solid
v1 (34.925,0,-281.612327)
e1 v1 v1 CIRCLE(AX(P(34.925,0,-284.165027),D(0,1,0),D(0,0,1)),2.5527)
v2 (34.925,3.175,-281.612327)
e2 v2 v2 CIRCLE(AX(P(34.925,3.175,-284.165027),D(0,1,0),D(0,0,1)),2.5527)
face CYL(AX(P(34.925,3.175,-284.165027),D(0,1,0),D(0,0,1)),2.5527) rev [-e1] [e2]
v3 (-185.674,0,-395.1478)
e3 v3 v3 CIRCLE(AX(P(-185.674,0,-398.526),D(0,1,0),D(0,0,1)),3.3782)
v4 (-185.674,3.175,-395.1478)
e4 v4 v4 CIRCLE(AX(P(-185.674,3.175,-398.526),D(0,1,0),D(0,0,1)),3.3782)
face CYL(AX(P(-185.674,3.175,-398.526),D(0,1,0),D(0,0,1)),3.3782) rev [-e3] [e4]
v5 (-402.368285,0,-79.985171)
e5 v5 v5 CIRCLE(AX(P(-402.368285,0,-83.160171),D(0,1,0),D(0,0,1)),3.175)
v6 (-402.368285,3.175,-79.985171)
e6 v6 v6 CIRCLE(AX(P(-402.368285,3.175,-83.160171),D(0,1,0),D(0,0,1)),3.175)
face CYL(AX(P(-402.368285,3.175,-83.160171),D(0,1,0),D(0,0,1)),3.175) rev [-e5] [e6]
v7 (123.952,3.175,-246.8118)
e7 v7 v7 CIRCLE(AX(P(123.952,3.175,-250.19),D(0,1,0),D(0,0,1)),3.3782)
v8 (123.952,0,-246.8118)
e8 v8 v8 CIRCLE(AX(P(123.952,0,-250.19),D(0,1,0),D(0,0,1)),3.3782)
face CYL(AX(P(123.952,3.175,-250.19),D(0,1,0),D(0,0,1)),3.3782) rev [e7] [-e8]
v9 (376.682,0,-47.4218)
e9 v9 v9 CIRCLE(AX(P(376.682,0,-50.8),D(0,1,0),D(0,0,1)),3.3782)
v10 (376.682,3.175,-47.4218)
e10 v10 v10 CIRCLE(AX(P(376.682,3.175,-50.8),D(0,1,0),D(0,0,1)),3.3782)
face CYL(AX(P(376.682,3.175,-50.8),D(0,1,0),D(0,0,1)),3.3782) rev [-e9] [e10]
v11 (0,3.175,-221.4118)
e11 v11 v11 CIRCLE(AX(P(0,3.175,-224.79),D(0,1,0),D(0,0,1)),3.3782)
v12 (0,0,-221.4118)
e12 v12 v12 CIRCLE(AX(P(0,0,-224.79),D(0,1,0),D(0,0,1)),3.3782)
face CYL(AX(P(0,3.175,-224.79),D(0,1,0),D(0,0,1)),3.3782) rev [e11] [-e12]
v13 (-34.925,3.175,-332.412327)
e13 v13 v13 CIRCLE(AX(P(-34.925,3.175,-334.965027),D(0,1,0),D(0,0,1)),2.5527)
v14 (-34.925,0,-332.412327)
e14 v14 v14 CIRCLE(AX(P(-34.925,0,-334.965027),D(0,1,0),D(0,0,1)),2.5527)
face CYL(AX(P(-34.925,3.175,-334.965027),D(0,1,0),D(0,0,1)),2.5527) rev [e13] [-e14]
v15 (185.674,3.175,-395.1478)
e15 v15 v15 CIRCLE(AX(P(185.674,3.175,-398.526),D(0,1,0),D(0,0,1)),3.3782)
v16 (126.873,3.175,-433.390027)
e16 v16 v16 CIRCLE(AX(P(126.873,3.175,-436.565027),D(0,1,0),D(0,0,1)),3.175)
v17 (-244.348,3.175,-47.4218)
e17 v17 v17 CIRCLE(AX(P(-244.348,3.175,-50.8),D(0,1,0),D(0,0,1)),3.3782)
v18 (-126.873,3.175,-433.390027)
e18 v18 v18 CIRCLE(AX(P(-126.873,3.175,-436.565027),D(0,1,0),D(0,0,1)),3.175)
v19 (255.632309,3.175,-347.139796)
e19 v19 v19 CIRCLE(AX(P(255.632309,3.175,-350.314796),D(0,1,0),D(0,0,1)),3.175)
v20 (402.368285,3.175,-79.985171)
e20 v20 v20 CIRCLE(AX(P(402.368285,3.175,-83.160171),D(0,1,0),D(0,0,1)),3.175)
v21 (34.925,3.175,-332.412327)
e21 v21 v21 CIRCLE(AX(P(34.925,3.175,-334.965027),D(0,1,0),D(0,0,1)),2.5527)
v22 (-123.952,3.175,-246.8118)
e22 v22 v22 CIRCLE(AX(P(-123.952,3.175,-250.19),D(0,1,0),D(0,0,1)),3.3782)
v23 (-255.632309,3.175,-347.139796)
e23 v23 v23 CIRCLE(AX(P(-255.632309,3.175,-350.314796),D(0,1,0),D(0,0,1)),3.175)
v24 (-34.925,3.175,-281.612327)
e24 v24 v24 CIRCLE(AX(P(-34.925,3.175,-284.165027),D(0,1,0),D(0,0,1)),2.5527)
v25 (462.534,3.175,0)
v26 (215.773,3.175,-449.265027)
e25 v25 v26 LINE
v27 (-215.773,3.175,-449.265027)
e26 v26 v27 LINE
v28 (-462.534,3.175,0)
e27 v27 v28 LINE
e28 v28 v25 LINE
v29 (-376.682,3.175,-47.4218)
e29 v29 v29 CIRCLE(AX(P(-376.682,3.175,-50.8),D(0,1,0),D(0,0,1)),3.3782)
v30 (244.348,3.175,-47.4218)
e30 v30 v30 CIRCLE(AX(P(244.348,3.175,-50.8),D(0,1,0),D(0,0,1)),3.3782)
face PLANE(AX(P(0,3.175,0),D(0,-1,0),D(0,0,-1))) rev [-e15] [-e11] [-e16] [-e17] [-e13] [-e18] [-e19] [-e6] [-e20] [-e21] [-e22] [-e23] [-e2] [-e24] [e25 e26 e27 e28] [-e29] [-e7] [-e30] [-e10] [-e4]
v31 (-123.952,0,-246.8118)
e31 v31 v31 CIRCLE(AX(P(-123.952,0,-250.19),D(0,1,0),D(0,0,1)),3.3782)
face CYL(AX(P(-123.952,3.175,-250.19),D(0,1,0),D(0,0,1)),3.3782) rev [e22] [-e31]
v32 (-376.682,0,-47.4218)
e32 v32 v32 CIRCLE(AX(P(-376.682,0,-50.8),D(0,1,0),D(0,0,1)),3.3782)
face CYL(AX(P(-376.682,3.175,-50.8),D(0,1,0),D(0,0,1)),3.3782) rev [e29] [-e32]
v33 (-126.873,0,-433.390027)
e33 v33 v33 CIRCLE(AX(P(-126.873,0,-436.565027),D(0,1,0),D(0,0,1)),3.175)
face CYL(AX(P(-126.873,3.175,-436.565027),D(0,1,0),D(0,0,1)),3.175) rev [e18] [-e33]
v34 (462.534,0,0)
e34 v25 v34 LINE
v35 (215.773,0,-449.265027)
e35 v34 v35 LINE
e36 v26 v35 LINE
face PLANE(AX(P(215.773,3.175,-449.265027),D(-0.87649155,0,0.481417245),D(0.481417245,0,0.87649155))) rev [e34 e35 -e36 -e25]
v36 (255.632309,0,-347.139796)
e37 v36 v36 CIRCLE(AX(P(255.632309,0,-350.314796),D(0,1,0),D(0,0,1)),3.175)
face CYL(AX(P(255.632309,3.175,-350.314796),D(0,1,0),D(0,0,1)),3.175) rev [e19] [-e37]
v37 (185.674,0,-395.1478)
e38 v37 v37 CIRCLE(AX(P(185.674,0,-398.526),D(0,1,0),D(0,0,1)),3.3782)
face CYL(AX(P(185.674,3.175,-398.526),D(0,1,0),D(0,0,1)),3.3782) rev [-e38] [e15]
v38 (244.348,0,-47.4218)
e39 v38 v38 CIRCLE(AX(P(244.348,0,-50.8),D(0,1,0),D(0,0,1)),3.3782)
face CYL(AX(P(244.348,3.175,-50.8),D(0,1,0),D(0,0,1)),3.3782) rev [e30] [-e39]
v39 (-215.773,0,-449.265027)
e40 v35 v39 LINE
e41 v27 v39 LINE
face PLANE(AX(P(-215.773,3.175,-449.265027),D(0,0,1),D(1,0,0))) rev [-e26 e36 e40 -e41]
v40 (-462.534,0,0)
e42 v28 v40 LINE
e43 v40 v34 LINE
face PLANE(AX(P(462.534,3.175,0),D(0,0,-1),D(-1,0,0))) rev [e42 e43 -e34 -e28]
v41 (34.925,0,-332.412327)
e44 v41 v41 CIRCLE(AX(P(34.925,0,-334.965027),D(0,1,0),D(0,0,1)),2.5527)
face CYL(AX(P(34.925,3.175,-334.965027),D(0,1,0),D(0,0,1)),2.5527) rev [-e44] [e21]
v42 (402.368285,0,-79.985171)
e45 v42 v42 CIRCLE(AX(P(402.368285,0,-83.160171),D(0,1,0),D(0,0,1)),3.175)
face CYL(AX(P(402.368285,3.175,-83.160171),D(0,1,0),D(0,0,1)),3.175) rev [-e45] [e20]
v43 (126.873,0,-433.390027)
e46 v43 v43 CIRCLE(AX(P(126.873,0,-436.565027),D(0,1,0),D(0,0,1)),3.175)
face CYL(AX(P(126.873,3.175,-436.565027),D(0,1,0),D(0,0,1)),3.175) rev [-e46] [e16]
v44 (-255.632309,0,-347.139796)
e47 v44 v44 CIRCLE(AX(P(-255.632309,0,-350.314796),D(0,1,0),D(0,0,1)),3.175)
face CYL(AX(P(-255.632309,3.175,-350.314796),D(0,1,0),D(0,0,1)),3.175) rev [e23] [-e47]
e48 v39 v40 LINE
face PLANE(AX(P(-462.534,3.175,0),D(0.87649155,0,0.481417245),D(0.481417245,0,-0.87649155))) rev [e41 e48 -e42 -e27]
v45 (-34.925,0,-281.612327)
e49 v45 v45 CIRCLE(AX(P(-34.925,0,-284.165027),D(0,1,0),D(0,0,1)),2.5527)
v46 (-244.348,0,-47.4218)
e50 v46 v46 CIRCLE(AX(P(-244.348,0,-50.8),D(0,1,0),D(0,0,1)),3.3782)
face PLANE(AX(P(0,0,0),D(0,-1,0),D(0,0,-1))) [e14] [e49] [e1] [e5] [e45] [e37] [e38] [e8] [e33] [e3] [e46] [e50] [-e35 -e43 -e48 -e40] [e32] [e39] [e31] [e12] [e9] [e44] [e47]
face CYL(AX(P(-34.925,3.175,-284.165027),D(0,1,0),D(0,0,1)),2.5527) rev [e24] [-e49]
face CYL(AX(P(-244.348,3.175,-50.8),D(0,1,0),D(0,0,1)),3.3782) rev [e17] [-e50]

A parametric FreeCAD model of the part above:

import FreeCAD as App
import Part
import Sketcher
Q = App.Units.Quantity


def add_polygon(sketch, points):
    """Adds a closed chain of lines whose ends are joined by coincident constraints."""
    first, n = sketch.GeometryCount, len(points)
    for a, b in zip(points, points[1:] + points[:1]):
        sketch.addGeometry(Part.LineSegment(App.Vector(*a, 0), App.Vector(*b, 0)), False)
    for i in range(n):
        sketch.addConstraint(Sketcher.Constraint("Coincident", first + i, 2, first + (i + 1) % n, 1))

doc = App.newDocument("Part")
body = doc.addObject("PartDesign::Body", "Body")

sketch1 = body.newObject("Sketcher::SketchObject", "Sketch")
sketch1.AttachmentSupport = (doc.getObject("XZ_Plane"), [""])
sketch1.MapMode = "FlatFace"
add_polygon(sketch1, [(-216, -449), (-463, 0), (463, 0), (216, -449)])
sketch1.addConstraint([
    Sketcher.Constraint("Horizontal", 1),
    Sketcher.Constraint("Horizontal", 3),
    Sketcher.Constraint("Symmetric", 0, 2, 1, 2, -1, 1),
    Sketcher.Constraint("Equal", 0, 2),
    Sketcher.Constraint("DistanceX", 1, 1, 1, 2, Q("36.42 in")),
    Sketcher.Constraint("DistanceX", 3, 2, 3, 1, Q("16.99 in")),
    Sketcher.Constraint("Distance", 0, Q("20.18 in")),
])
pad1 = body.newObject("PartDesign::Pad", "Pad")
pad1.Profile = sketch1
pad1.Length = Q("0.125 in")
pad1.Reversed = True

sketch2 = body.newObject("Sketcher::SketchObject", "Sketch001")
sketch2.AttachmentSupport = (doc.getObject("XZ_Plane"), [""])
sketch2.MapMode = "FlatFace"
sketch2.AttachmentOffset = App.Placement(App.Vector(0, 0, -0.125 * 25.4), App.Rotation())
sketch2.addGeometry([
    Part.Circle(App.Vector(-402.4, -83.2, 0), App.Vector(0, 0, 1), 3.2),
    Part.Circle(App.Vector(-255.6, -350.3, 0), App.Vector(0, 0, 1), 3.2),
    Part.Circle(App.Vector(-126.9, -436.6, 0), App.Vector(0, 0, 1), 3.2),
    Part.Circle(App.Vector(402.4, -83.2, 0), App.Vector(0, 0, 1), 3.2),
    Part.Circle(App.Vector(255.6, -350.3, 0), App.Vector(0, 0, 1), 3.2),
    Part.Circle(App.Vector(126.9, -436.6, 0), App.Vector(0, 0, 1), 3.2),
], False)
sketch2.addConstraint([
    Sketcher.Constraint("Equal", 0, 1),
    Sketcher.Constraint("Equal", 1, 2),
    Sketcher.Constraint("Equal", 2, 3),
    Sketcher.Constraint("Equal", 3, 4),
    Sketcher.Constraint("Equal", 4, 5),
    Sketcher.Constraint("Symmetric", 0, 3, 3, 3, -2),
    Sketcher.Constraint("Symmetric", 1, 3, 4, 3, -2),
    Sketcher.Constraint("Symmetric", 2, 3, 5, 3, -2),
    Sketcher.Constraint("Diameter", 0, Q("0.25 in")),
    Sketcher.Constraint("DistanceX", 2, 3, 5, 3, Q("9.99 in")),
    Sketcher.Constraint("DistanceY", 0, 3, -1, 1, Q("83.160171 mm")),
    Sketcher.Constraint("DistanceX", 1, 3, -1, 1, Q("255.632309 mm")),
    Sketcher.Constraint("DistanceY", 2, 3, 1, 3, Q("86.250231 mm")),
    Sketcher.Constraint("DistanceX", 0, 3, 3, 3, Q("804.736571 mm")),
    Sketcher.Constraint("DistanceY", 1, 3, -1, 1, Q("350.314796 mm")),
])
doc.recompute()
hole = body.newObject("PartDesign::Hole", "Hole")
hole.Profile = sketch2
hole.ThreadType = "None"
hole.Diameter = Q("0.25 in")
hole.DepthType = "ThroughAll"
hole.Reversed = True

sketch3 = body.newObject("Sketcher::SketchObject", "Sketch002")
sketch3.AttachmentSupport = (doc.getObject("XZ_Plane"), [""])
sketch3.MapMode = "FlatFace"
sketch3.AttachmentOffset = App.Placement(App.Vector(0, 0, -0.125 * 25.4), App.Rotation())
sketch3.addGeometry([
    Part.Circle(App.Vector(-376.7, -50.8, 0), App.Vector(0, 0, 1), 3.4),
    Part.Circle(App.Vector(-244.3, -50.8, 0), App.Vector(0, 0, 1), 3.4),
    Part.Circle(App.Vector(-124, -250.2, 0), App.Vector(0, 0, 1), 3.4),
    Part.Circle(App.Vector(-185.7, -398.5, 0), App.Vector(0, 0, 1), 3.4),
    Part.Circle(App.Vector(0, -224.8, 0), App.Vector(0, 0, 1), 3.4),
    Part.Circle(App.Vector(376.7, -50.8, 0), App.Vector(0, 0, 1), 3.4),
    Part.Circle(App.Vector(244.3, -50.8, 0), App.Vector(0, 0, 1), 3.4),
    Part.Circle(App.Vector(185.7, -398.5, 0), App.Vector(0, 0, 1), 3.4),
    Part.Circle(App.Vector(124, -250.2, 0), App.Vector(0, 0, 1), 3.4),
], False)
sketch3.addConstraint([
    Sketcher.Constraint("Equal", 0, 1),
    Sketcher.Constraint("Equal", 1, 2),
    Sketcher.Constraint("Equal", 2, 3),
    Sketcher.Constraint("Equal", 3, 4),
    Sketcher.Constraint("Equal", 4, 5),
    Sketcher.Constraint("Equal", 5, 6),
    Sketcher.Constraint("Equal", 6, 7),
    Sketcher.Constraint("Equal", 7, 8),
    Sketcher.Constraint("Symmetric", 0, 3, 5, 3, -2),
    Sketcher.Constraint("Symmetric", 1, 3, 6, 3, -2),
    Sketcher.Constraint("Symmetric", 3, 3, 7, 3, -2),
    Sketcher.Constraint("Symmetric", 2, 3, 8, 3, -2),
    Sketcher.Constraint("PointOnObject", 4, 3, -2),
    Sketcher.Constraint("Horizontal", 0, 3, 1, 3),
    Sketcher.Constraint("Diameter", 0, Q("0.266 in")),
    Sketcher.Constraint("DistanceY", 0, 3, -1, 1, Q("2 in")),
    Sketcher.Constraint("DistanceY", 2, 3, 4, 3, Q("1 in")),
    Sketcher.Constraint("DistanceX", 2, 3, 6, 3, Q("14.5 in")),
    Sketcher.Constraint("DistanceX", 0, 3, -1, 1, Q("14.83 in")),
    Sketcher.Constraint("DistanceX", 1, 3, -1, 1, Q("9.62 in")),
    Sketcher.Constraint("DistanceY", 2, 3, -1, 1, Q("9.85 in")),
    Sketcher.Constraint("DistanceX", 3, 3, -1, 1, Q("7.31 in")),
    Sketcher.Constraint("DistanceY", 3, 3, -1, 1, Q("15.69 in")),
])
doc.recompute()
hole2 = body.newObject("PartDesign::Hole", "Hole001")
hole2.Profile = sketch3
hole2.ThreadType = "None"
hole2.Diameter = Q("0.266 in")
hole2.DepthType = "ThroughAll"
hole2.Reversed = True

sketch4 = body.newObject("Sketcher::SketchObject", "Sketch003")
sketch4.AttachmentSupport = (doc.getObject("XZ_Plane"), [""])
sketch4.MapMode = "FlatFace"
sketch4.AttachmentOffset = App.Placement(App.Vector(0, 0, -0.125 * 25.4), App.Rotation())
sketch4.addGeometry([
    Part.Circle(App.Vector(34.9, -335, 0), App.Vector(0, 0, 1), 2.6),
    Part.Circle(App.Vector(-34.9, -335, 0), App.Vector(0, 0, 1), 2.6),
    Part.Circle(App.Vector(-34.9, -284.2, 0), App.Vector(0, 0, 1), 2.6),
    Part.Circle(App.Vector(34.9, -284.2, 0), App.Vector(0, 0, 1), 2.6),
], False)
sketch4.addConstraint([
    Sketcher.Constraint("Equal", 0, 1),
    Sketcher.Constraint("Equal", 1, 2),
    Sketcher.Constraint("Equal", 2, 3),
    Sketcher.Constraint("Symmetric", 0, 3, 1, 3, -2),
    Sketcher.Constraint("Symmetric", 2, 3, 3, 3, -2),
    Sketcher.Constraint("Vertical", 1, 3, 2, 3),
    Sketcher.Constraint("Diameter", 0, Q("0.201 in")),
    Sketcher.Constraint("DistanceY", 1, 3, 2, 3, Q("2 in")),
    Sketcher.Constraint("DistanceX", 1, 3, 0, 3, Q("2.75 in")),
    Sketcher.Constraint("DistanceY", 0, 3, -1, 1, Q("334.965027 mm")),
])
doc.recompute()
hole3 = body.newObject("PartDesign::Hole", "Hole002")
hole3.Profile = sketch4
hole3.ThreadType = "None"
hole3.Diameter = Q("0.201 in")
hole3.DepthType = "ThroughAll"
hole3.Reversed = True

doc.recompute()
